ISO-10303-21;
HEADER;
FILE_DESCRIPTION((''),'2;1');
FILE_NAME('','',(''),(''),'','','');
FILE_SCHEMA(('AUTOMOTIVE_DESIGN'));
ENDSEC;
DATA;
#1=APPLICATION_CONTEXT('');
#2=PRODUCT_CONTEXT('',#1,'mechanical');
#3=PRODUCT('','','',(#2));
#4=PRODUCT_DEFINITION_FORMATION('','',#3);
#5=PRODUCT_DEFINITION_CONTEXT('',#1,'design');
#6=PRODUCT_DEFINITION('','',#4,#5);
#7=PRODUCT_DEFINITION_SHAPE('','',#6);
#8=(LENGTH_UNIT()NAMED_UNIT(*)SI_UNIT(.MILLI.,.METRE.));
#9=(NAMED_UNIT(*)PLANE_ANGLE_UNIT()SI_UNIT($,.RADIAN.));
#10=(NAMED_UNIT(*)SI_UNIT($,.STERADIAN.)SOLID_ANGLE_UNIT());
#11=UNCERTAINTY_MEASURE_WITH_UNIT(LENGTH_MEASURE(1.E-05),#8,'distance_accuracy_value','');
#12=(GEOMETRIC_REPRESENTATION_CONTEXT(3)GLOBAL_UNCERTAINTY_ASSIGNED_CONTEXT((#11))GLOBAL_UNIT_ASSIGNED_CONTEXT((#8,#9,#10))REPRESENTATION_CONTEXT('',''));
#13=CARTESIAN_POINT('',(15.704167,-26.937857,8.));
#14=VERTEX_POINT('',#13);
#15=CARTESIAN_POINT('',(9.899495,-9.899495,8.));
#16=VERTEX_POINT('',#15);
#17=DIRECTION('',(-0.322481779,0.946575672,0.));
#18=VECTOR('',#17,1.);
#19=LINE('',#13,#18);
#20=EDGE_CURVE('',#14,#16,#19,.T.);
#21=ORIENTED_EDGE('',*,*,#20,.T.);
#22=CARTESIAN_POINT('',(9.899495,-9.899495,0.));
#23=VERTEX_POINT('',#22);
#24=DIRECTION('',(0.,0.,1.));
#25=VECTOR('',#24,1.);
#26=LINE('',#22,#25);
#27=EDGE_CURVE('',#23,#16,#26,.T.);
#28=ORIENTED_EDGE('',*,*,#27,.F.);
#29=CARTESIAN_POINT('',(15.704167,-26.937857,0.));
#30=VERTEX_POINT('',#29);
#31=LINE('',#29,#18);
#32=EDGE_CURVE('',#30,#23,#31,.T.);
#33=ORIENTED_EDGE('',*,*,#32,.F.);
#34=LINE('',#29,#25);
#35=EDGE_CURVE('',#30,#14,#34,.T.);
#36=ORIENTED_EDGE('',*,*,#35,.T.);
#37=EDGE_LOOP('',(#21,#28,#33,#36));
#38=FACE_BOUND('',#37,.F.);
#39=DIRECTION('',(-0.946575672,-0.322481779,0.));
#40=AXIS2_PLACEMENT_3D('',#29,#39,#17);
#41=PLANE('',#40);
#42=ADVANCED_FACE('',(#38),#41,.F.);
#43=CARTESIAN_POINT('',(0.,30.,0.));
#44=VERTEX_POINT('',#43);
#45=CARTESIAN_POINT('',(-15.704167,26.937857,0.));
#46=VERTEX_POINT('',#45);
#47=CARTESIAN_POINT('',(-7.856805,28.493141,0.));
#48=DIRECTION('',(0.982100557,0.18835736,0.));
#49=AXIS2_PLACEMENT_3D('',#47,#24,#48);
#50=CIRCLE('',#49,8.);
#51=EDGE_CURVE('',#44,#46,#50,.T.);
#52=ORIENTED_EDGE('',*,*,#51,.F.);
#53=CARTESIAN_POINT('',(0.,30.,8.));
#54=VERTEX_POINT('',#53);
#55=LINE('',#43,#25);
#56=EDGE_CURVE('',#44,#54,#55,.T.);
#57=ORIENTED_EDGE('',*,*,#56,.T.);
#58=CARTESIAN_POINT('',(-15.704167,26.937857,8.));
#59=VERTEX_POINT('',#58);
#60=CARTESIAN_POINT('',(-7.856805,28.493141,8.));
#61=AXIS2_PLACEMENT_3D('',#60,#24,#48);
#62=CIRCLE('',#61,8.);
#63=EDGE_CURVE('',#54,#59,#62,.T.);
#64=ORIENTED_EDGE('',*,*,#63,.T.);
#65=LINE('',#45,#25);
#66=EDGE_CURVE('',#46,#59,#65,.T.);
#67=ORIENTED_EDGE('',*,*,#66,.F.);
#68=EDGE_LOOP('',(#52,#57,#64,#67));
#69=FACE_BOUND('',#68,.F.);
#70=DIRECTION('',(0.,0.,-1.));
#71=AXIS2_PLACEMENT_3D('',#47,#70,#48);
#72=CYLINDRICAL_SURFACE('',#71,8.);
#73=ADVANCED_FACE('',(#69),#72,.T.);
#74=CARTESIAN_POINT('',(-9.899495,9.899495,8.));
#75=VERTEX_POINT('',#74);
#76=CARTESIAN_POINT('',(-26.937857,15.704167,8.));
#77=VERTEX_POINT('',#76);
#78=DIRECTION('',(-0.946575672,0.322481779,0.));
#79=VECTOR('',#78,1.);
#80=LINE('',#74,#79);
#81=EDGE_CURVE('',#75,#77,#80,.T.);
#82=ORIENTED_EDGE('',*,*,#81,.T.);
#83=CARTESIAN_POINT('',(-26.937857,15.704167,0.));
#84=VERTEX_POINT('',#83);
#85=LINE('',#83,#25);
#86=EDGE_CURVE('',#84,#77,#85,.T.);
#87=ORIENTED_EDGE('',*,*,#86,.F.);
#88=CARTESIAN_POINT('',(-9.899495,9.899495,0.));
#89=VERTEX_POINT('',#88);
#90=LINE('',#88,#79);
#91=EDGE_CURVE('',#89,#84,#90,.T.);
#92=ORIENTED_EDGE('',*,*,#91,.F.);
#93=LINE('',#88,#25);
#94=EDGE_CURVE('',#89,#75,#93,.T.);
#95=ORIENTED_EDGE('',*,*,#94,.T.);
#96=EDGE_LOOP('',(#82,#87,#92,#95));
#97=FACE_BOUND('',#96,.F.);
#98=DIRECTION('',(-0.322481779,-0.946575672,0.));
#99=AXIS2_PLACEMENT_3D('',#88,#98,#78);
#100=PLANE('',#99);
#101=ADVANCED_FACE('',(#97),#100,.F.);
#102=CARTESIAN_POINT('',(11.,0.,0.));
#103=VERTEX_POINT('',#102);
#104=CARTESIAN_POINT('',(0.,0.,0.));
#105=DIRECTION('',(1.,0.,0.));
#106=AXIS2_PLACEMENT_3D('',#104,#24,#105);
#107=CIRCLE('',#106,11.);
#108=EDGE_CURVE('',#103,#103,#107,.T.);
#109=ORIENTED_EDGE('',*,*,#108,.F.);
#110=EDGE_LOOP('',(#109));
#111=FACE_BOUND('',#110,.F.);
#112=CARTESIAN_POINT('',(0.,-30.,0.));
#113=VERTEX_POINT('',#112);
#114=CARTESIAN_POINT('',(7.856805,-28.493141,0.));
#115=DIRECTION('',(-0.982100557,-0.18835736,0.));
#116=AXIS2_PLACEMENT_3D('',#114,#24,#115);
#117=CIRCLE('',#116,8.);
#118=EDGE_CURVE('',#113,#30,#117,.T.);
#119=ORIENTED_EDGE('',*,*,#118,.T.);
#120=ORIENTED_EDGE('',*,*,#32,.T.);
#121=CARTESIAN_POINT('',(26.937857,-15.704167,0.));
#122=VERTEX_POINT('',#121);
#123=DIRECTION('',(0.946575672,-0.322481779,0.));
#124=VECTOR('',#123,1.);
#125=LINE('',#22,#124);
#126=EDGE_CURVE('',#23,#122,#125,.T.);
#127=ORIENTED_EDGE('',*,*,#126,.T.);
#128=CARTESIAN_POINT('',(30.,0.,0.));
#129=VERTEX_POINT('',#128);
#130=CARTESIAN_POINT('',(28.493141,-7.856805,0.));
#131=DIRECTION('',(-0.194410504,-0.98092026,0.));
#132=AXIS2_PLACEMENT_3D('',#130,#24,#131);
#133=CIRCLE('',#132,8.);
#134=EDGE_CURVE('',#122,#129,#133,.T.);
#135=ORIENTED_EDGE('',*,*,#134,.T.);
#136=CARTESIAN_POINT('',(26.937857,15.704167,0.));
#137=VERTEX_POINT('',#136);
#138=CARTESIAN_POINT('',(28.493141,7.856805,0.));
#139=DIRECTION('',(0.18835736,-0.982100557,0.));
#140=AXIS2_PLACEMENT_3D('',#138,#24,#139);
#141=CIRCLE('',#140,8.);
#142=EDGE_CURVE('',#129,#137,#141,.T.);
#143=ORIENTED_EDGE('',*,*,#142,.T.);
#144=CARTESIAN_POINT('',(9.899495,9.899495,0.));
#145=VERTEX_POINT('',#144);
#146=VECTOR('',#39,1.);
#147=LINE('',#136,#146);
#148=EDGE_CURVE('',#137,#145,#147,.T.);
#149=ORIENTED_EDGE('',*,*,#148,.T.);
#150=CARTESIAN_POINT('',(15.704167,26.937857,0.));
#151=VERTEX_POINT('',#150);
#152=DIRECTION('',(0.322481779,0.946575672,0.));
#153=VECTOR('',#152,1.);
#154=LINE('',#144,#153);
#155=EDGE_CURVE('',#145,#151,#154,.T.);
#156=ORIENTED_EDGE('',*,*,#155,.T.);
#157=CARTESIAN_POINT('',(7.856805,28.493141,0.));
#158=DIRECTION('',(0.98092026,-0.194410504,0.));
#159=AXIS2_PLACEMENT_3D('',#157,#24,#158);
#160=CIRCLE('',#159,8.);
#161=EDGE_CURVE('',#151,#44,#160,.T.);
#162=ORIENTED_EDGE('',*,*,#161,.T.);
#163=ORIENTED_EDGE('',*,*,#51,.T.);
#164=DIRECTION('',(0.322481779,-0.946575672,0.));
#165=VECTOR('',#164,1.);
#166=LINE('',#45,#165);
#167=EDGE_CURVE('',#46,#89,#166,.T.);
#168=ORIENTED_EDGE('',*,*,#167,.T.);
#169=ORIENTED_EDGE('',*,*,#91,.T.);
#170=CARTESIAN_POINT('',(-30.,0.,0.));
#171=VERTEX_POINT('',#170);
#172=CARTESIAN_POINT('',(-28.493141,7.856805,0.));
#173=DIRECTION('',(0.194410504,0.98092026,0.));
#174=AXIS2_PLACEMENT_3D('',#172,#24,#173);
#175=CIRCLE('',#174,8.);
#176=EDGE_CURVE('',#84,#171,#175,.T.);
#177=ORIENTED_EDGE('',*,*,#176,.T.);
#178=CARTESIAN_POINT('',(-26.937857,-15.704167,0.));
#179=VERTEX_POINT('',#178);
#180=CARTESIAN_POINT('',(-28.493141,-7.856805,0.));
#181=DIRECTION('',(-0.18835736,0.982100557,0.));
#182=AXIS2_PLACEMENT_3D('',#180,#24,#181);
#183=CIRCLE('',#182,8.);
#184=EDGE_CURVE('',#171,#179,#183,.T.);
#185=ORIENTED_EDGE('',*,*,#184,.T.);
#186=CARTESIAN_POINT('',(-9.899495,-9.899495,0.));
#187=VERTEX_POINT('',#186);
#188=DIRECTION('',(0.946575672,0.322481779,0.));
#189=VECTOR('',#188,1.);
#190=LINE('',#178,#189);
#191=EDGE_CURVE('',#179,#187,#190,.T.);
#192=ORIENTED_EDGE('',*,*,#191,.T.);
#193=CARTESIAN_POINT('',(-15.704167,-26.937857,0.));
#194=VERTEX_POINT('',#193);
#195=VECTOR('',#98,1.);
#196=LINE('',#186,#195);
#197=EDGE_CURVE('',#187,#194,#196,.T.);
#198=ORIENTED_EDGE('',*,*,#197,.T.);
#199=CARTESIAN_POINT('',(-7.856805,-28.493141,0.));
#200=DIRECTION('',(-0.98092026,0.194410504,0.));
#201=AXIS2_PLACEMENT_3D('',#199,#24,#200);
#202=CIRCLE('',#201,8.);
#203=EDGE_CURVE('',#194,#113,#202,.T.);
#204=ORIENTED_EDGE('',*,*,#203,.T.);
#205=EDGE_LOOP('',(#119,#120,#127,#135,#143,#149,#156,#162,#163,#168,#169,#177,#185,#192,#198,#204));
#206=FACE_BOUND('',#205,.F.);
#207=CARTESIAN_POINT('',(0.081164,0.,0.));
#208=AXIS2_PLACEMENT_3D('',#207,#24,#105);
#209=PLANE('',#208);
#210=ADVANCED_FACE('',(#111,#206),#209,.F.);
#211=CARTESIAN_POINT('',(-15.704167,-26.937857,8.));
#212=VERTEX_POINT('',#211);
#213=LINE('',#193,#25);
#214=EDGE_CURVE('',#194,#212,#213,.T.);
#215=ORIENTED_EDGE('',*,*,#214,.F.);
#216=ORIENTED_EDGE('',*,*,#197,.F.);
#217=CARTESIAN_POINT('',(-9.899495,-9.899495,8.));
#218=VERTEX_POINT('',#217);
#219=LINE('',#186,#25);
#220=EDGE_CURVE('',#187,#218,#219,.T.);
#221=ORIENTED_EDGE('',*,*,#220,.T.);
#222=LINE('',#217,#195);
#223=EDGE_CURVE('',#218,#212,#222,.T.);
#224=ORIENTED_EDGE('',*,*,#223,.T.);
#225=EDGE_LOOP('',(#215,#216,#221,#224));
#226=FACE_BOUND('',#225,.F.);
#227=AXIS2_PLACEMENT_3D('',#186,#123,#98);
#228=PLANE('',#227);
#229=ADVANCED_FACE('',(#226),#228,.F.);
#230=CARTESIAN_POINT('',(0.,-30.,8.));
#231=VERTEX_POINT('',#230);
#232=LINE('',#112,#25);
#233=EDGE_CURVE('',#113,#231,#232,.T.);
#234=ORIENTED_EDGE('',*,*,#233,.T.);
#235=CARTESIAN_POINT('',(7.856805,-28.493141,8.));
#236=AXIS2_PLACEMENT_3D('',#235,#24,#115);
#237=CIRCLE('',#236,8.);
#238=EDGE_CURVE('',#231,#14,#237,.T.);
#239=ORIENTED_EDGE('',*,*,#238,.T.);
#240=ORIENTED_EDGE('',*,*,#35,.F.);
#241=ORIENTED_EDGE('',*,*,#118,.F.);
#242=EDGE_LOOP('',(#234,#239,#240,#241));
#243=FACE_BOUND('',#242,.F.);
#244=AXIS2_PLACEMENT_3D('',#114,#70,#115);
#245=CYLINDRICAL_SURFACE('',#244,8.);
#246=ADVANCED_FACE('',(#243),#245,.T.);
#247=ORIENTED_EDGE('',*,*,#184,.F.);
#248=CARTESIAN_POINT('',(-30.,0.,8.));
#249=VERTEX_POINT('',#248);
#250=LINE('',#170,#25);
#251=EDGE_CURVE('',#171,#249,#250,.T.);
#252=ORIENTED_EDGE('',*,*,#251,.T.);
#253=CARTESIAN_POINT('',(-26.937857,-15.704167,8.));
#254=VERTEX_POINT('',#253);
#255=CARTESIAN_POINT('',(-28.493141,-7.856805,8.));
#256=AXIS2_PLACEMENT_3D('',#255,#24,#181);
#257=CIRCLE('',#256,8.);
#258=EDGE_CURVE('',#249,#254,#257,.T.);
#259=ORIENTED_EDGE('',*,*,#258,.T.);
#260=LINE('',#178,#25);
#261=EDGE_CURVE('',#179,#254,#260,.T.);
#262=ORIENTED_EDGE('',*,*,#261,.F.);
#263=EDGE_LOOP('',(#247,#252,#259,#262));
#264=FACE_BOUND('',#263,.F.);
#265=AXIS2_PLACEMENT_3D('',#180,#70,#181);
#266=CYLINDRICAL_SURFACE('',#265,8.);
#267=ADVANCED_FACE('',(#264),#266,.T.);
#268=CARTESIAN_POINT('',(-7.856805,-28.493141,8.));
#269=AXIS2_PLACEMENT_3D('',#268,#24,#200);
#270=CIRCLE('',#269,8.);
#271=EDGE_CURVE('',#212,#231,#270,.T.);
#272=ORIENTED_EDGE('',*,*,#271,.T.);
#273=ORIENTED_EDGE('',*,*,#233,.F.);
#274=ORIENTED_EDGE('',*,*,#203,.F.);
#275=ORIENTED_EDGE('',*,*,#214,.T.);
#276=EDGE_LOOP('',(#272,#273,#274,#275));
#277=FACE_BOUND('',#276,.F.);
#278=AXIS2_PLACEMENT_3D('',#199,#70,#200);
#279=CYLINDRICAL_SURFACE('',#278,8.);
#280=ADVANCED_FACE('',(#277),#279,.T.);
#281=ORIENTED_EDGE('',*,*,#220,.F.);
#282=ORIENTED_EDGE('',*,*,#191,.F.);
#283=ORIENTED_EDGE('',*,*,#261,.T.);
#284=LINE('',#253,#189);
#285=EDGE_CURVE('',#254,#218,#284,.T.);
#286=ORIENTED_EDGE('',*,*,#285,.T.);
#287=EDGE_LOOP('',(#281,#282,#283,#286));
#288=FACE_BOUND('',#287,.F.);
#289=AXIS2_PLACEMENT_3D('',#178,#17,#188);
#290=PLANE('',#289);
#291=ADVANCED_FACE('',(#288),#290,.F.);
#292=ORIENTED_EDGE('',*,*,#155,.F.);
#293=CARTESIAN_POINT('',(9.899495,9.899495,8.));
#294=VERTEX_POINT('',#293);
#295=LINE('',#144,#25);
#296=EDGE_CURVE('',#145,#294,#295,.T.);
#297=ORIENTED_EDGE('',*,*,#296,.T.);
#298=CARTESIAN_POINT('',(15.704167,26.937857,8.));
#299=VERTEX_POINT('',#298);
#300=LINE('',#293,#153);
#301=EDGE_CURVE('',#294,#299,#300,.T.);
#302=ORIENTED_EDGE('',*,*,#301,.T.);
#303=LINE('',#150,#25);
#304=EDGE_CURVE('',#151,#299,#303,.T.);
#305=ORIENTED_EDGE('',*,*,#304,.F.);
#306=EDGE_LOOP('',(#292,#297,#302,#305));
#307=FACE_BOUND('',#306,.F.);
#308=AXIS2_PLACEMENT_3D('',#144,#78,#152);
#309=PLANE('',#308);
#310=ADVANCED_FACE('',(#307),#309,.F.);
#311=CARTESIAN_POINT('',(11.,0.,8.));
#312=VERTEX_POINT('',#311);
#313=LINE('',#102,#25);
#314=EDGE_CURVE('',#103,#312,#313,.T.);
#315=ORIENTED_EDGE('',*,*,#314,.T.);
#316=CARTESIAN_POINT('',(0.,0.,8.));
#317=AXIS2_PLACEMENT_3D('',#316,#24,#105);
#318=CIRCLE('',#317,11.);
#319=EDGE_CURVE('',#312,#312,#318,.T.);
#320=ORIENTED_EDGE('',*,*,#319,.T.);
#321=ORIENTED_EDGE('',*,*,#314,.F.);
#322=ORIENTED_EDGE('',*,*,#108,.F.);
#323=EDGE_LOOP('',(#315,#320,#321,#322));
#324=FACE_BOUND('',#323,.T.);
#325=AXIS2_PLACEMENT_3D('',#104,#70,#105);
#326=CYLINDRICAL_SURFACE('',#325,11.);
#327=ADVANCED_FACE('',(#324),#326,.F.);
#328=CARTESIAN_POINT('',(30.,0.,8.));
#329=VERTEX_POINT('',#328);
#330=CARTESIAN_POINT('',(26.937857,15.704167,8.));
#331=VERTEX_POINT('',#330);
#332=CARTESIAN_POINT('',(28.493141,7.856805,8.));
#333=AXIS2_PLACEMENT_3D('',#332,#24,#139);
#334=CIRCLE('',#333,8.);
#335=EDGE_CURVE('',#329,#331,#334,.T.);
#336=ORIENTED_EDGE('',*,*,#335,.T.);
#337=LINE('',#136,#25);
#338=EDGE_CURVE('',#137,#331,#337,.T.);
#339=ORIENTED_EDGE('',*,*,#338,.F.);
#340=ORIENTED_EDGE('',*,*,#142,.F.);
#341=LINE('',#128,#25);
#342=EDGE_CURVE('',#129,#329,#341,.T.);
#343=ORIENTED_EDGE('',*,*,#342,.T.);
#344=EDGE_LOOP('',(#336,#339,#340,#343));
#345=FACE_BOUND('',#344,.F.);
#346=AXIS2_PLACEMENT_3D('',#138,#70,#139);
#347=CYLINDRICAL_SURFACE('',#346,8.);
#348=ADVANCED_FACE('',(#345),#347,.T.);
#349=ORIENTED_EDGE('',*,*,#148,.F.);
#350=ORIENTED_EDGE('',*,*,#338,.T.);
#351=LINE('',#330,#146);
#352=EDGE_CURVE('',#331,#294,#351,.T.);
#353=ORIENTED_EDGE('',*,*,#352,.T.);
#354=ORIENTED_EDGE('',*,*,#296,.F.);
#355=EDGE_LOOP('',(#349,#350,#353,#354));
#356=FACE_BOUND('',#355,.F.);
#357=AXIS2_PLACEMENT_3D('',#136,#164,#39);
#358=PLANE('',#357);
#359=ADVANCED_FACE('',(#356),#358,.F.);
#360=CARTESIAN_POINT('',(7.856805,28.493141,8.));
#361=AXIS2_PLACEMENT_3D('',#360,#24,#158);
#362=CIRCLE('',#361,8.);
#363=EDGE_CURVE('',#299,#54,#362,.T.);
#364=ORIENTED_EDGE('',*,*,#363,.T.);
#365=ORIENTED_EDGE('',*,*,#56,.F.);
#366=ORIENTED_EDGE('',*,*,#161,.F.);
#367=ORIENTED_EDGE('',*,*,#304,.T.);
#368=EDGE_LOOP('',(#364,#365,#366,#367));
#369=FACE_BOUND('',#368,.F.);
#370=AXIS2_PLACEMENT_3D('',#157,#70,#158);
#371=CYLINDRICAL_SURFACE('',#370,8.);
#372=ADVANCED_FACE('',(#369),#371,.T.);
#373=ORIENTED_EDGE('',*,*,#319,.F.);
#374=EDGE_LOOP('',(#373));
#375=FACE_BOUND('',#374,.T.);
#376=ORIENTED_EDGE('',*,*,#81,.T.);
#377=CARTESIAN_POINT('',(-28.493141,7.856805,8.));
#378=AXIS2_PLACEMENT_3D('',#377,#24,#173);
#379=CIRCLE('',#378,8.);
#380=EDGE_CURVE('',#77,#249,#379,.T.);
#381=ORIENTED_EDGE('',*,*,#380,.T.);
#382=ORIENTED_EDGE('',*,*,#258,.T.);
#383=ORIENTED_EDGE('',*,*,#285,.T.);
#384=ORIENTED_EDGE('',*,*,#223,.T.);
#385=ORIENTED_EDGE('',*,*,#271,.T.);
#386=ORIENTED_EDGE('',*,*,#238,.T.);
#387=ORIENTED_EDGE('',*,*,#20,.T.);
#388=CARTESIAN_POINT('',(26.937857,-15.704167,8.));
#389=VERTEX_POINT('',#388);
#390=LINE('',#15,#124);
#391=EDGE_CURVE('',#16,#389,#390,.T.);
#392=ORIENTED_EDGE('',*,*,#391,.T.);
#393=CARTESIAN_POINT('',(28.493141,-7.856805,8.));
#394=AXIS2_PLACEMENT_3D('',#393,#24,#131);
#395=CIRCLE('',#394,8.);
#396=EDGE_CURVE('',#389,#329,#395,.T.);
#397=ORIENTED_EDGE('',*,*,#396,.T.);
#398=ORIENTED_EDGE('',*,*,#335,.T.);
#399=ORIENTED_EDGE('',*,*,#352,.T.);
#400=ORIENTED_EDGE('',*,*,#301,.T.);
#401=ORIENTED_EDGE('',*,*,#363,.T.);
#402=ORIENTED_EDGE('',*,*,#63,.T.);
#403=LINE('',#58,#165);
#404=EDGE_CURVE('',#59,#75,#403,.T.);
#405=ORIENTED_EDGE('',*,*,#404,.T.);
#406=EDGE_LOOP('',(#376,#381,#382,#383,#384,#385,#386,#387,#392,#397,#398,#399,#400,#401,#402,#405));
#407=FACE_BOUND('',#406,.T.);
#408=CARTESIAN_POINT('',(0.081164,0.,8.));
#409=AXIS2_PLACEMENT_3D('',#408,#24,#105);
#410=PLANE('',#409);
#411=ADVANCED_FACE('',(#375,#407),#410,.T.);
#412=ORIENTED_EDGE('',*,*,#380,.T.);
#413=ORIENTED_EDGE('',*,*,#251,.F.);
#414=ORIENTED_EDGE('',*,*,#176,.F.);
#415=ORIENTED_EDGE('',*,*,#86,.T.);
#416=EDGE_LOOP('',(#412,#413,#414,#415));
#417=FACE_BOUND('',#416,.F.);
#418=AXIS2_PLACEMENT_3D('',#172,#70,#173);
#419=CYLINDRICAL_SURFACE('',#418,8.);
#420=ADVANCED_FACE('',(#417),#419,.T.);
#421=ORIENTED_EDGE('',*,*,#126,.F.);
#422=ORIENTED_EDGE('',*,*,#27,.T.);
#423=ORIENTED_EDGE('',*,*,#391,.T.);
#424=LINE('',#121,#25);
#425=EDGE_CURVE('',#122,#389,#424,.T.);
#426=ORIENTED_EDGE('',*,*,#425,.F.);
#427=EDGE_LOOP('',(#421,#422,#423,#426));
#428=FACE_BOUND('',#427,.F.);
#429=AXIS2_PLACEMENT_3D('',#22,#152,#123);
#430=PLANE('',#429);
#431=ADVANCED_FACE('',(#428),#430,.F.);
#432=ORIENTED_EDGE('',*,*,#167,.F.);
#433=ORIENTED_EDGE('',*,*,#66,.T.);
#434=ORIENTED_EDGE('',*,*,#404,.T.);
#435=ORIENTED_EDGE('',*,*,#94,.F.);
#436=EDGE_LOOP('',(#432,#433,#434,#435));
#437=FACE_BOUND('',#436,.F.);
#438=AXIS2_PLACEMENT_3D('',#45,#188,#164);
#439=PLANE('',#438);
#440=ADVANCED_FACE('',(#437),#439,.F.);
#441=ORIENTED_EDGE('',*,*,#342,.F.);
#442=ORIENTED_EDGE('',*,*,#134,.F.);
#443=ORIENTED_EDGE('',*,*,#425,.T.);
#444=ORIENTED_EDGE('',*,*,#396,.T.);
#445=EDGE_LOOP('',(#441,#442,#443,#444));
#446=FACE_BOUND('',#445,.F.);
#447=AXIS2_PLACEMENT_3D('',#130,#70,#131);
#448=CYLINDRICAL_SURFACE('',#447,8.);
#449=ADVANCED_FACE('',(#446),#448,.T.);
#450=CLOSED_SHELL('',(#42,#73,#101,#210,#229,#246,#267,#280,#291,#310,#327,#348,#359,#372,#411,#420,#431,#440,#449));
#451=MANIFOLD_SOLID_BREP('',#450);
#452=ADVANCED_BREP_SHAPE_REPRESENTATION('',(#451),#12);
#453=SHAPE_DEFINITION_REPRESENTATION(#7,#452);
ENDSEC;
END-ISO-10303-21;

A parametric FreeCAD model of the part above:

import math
import FreeCAD as App
import Part
import Sketcher

V = App.Vector

doc = App.newDocument("Part")
body = doc.addObject("PartDesign::Body", "Body")

# Sketch on XY plane
sketch1 = doc.addObject("Sketcher::SketchObject", "Sketch")
body.addObject(sketch1)
sketch1.AttachmentSupport = (doc.XY_Plane, [""])
sketch1.MapMode = "FlatFace"
sketch1.addGeometry([
    Part.LineSegment(V(10, 10, 0), V(16, 27, 0)),  # 0
    Part.ArcOfCircle(Part.Circle(V(8, 28, 0), V(0, 0, 1), 8), math.radians(-11), math.radians(169)),  # 1
    Part.ArcOfCircle(Part.Circle(V(-8, 28, 0), V(0, 0, 1), 8), math.radians(11), math.radians(191)),  # 2
    Part.LineSegment(V(-16, 27, 0), V(-10, 10, 0)),  # 3
    Part.LineSegment(V(-10, 10, 0), V(-27, 16, 0)),  # 4
    Part.ArcOfCircle(Part.Circle(V(-28, 8, 0), V(0, 0, 1), 8), math.radians(79), math.radians(259)),  # 5
    Part.ArcOfCircle(Part.Circle(V(-28, -8, 0), V(0, 0, 1), 8), math.radians(101), math.radians(281)),  # 6
    Part.LineSegment(V(-27, -16, 0), V(-10, -10, 0)),  # 7
    Part.LineSegment(V(-10, -10, 0), V(-16, -27, 0)),  # 8
    Part.ArcOfCircle(Part.Circle(V(-8, -28, 0), V(0, 0, 1), 8), math.radians(169), math.radians(349)),  # 9
    Part.ArcOfCircle(Part.Circle(V(8, -28, 0), V(0, 0, 1), 8), math.radians(-169), math.radians(11)),  # 10
    Part.LineSegment(V(16, -27, 0), V(10, -10, 0)),  # 11
    Part.LineSegment(V(10, -10, 0), V(27, -16, 0)),  # 12
    Part.ArcOfCircle(Part.Circle(V(28, -8, 0), V(0, 0, 1), 8), math.radians(-101), math.radians(79)),  # 13
    Part.ArcOfCircle(Part.Circle(V(28, 8, 0), V(0, 0, 1), 8), math.radians(-79), math.radians(101)),  # 14
    Part.LineSegment(V(27, 16, 0), V(10, 10, 0)),  # 15
    Part.Circle(V(0, 0, 0), V(0, 0, 1), 11),  # 16
], False)
sketch1.addConstraint([
    Sketcher.Constraint("Coincident", 0, 2, 1, 1),
    Sketcher.Constraint("Coincident", 1, 2, 2, 1),
    Sketcher.Constraint("Coincident", 2, 2, 3, 1),
    Sketcher.Constraint("Coincident", 3, 2, 4, 1),
    Sketcher.Constraint("Coincident", 4, 2, 5, 1),
    Sketcher.Constraint("Coincident", 5, 2, 6, 1),
    Sketcher.Constraint("Coincident", 6, 2, 7, 1),
    Sketcher.Constraint("Coincident", 7, 2, 8, 1),
    Sketcher.Constraint("Coincident", 8, 2, 9, 1),
    Sketcher.Constraint("Coincident", 9, 2, 10, 1),
    Sketcher.Constraint("Coincident", 10, 2, 11, 1),
    Sketcher.Constraint("Coincident", 11, 2, 12, 1),
    Sketcher.Constraint("Coincident", 12, 2, 13, 1),
    Sketcher.Constraint("Coincident", 13, 2, 14, 1),
    Sketcher.Constraint("Coincident", 14, 2, 15, 1),
    Sketcher.Constraint("Coincident", 15, 2, 0, 1),
    Sketcher.Constraint("Coincident", 16, 3, -1, 1),
    Sketcher.Constraint("Equal", 1, 2),
    Sketcher.Constraint("Equal", 2, 5),
    Sketcher.Constraint("Equal", 5, 6),
    Sketcher.Constraint("Equal", 6, 9),
    Sketcher.Constraint("Equal", 9, 10),
    Sketcher.Constraint("Equal", 10, 13),
    Sketcher.Constraint("Equal", 13, 14),
    Sketcher.Constraint("Symmetric", 1, 3, 9, 3, -1, 1),
    Sketcher.Constraint("Symmetric", 2, 3, 10, 3, -1, 1),
    Sketcher.Constraint("Symmetric", 5, 3, 13, 3, -1, 1),
    Sketcher.Constraint("Symmetric", 6, 3, 14, 3, -1, 1),
    Sketcher.Constraint("Symmetric", 3, 2, 11, 2, -1, 1),
    Sketcher.Constraint("Symmetric", 7, 2, 15, 2, -1, 1),
    Sketcher.Constraint("Symmetric", 1, 3, 2, 3, -2),
    Sketcher.Constraint("Symmetric", 6, 3, 13, 3, -2),
    Sketcher.Constraint("Symmetric", 7, 2, 11, 2, -2),
    Sketcher.Constraint("Perpendicular", 0, 4),
    Sketcher.Constraint("Perpendicular", 3, 7),
    Sketcher.Constraint("Perpendicular", 4, 8),
    Sketcher.Constraint("Perpendicular", 7, 11),
    Sketcher.Constraint("Perpendicular", 8, 12),
    Sketcher.Constraint("Perpendicular", 11, 15),
    Sketcher.Constraint("Horizontal", 0, 2, 2, 2),
    Sketcher.Constraint("Equal", 3, 4),
    Sketcher.Constraint("Diameter", 16, 22.0),
    Sketcher.Constraint("Radius", 1, 8.0),
    Sketcher.Constraint("Distance", 0, 18.0),
    Sketcher.Constraint("DistanceY", -1, 1, 1, 2, 30.0),
    Sketcher.Constraint("DistanceX", 5, 2, -1, 1, 30.0),
    Sketcher.Constraint("DistanceY", -1, 1, 1, 3, 28.493141),
    Sketcher.Constraint("DistanceX", 5, 3, -1, 1, 28.493141),
    Sketcher.Constraint("DistanceX", 2, 3, 0, 2, 23.560972),
])
pad1 = doc.addObject("PartDesign::Pad", "Pad")
body.addObject(pad1)
pad1.Profile = sketch1
pad1.Length = 8

doc.recompute()
